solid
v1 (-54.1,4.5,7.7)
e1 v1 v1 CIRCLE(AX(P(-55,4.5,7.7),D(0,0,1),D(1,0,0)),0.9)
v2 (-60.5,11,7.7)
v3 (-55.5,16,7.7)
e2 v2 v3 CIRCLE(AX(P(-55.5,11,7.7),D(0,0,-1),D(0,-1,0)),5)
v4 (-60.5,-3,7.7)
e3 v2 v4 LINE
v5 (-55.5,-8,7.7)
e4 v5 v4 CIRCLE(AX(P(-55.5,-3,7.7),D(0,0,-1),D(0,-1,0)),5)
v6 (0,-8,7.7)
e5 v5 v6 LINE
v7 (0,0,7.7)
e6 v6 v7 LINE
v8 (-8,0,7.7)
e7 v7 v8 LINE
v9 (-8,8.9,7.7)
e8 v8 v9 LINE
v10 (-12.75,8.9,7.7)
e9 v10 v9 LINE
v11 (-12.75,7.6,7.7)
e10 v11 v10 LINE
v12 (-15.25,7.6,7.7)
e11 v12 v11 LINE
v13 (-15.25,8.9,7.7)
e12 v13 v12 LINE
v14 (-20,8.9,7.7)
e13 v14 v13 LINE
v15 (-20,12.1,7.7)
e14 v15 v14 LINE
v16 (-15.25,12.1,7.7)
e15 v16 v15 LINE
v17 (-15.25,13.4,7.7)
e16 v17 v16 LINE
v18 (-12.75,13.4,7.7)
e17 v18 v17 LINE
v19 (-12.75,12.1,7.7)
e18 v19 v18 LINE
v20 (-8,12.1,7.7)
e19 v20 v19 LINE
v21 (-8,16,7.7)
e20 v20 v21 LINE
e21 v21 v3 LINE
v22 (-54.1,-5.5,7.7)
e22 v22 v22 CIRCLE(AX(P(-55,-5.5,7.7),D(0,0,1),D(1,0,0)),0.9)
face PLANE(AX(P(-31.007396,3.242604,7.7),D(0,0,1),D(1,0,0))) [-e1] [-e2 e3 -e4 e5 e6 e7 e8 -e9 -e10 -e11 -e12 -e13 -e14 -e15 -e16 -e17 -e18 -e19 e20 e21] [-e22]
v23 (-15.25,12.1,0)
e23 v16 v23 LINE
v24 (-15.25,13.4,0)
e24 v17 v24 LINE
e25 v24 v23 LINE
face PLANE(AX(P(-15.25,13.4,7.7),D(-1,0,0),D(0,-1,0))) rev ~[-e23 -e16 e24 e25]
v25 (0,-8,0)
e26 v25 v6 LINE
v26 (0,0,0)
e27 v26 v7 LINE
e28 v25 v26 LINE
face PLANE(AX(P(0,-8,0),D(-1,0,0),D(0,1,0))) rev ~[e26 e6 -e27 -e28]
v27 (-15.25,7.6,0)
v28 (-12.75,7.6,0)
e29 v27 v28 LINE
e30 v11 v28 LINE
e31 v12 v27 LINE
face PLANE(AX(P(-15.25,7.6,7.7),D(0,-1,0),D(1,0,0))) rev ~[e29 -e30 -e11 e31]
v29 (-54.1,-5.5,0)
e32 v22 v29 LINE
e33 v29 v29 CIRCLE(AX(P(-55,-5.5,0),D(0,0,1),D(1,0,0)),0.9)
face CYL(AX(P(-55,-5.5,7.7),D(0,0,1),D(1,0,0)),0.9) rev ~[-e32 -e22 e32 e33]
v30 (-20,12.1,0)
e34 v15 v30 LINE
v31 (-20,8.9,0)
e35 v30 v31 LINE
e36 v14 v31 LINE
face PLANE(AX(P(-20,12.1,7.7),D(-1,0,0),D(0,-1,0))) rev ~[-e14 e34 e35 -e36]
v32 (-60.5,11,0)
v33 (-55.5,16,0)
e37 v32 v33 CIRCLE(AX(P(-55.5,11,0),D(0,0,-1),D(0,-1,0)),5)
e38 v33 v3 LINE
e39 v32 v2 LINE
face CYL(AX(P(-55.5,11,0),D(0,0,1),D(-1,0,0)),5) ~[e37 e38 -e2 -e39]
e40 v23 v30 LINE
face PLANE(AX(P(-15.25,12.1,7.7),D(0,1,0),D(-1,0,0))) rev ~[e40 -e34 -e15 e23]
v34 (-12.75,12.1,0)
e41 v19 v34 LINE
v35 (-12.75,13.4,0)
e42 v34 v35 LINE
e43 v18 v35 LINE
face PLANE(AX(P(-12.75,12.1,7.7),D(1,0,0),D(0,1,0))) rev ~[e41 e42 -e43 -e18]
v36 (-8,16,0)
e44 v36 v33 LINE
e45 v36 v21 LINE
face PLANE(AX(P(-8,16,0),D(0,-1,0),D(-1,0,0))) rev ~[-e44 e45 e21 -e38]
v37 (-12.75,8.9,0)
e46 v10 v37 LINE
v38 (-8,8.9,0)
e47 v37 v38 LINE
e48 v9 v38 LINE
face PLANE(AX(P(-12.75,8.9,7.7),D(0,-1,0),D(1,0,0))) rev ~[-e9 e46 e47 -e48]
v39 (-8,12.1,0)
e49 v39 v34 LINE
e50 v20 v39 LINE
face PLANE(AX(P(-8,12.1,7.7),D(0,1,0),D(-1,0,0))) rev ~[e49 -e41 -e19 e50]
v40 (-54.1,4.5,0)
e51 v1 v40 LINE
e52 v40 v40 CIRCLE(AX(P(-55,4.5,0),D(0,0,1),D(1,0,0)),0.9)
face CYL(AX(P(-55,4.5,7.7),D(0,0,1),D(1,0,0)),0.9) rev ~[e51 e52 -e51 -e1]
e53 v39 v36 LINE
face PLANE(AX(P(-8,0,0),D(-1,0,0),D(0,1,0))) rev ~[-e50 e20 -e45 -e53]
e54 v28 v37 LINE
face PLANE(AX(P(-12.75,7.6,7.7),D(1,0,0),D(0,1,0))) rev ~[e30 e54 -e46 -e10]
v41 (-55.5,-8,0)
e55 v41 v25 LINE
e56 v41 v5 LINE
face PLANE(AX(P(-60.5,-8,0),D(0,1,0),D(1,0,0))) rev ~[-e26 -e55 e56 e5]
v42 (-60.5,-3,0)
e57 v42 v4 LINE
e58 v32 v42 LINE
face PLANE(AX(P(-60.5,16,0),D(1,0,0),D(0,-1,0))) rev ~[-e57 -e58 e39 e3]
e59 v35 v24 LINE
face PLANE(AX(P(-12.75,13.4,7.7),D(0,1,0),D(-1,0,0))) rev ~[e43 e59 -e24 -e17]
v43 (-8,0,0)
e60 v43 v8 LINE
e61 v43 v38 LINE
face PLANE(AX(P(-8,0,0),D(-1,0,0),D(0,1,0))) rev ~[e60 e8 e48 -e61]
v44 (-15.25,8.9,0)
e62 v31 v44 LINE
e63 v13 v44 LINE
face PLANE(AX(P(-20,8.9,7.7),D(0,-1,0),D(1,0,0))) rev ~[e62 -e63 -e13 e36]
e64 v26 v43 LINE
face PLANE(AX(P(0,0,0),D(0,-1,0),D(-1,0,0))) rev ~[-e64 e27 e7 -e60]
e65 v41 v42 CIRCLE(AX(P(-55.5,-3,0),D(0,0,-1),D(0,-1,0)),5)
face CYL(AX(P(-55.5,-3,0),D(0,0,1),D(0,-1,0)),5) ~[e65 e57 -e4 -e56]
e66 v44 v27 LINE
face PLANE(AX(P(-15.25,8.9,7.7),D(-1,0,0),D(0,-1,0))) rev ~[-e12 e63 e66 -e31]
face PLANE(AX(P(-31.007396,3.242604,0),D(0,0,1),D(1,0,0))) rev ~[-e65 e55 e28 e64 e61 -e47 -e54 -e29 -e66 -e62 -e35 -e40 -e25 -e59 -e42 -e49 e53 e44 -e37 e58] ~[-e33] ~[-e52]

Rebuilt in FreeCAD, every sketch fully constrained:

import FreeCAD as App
import Part
import Sketcher

V = App.Vector


def edges_at(feature, points):
    """Names of the edges that pass closest to the given points."""
    edges = feature.Shape.Edges
    near = lambda p: min(range(len(edges)), key=lambda i: edges[i].distToShape(Part.Vertex(*p))[0])
    return sorted({f"Edge{near(p) + 1}" for p in points})

doc = App.newDocument("Part")
body = doc.addObject("PartDesign::Body", "Body")

# Sketch on XY plane
sketch1 = body.newObject("Sketcher::SketchObject", "Sketch")
sketch1.AttachmentSupport = (doc.getObject("XY_Plane"), [""])
sketch1.MapMode = "FlatFace"
sketch1.addGeometry([
    Part.LineSegment(V(0, -8, 0), V(0, 0, 0)),  # 0
    Part.LineSegment(V(0, 0, 0), V(-8, 0, 0)),  # 1
    Part.LineSegment(V(-8, 0, 0), V(-8, 16, 0)),  # 2
    Part.LineSegment(V(-8, 16, 0), V(-60, 16, 0)),  # 3
    Part.LineSegment(V(-60, 16, 0), V(-60, -8, 0)),  # 4
    Part.LineSegment(V(-60, -8, 0), V(0, -8, 0)),  # 5
], False)
sketch1.addConstraint([
    Sketcher.Constraint("Coincident", 0, 2, 1, 1),
    Sketcher.Constraint("Coincident", 1, 2, 2, 1),
    Sketcher.Constraint("Coincident", 2, 2, 3, 1),
    Sketcher.Constraint("Coincident", 3, 2, 4, 1),
    Sketcher.Constraint("Coincident", 4, 2, 5, 1),
    Sketcher.Constraint("Coincident", 5, 2, 0, 1),
    Sketcher.Constraint("Vertical", 0),
    Sketcher.Constraint("Horizontal", 1),
    Sketcher.Constraint("Vertical", 2),
    Sketcher.Constraint("Horizontal", 3),
    Sketcher.Constraint("Vertical", 4),
    Sketcher.Constraint("Horizontal", 5),
    Sketcher.Constraint("Coincident", 0, 2, -1, 1),
    Sketcher.Constraint("Equal", 1, 0),
    Sketcher.Constraint("DistanceX", 1, 2, 1, 1, 8.0),
    Sketcher.Constraint("DistanceY", 2, 1, 2, 2, 16.0),
    Sketcher.Constraint("DistanceX", 3, 2, 3, 1, 52.5),
])
pad1 = body.newObject("PartDesign::Pad", "Pad")
pad1.Profile = sketch1
pad1.Length = 7.7

# Sketch on XY plane
sketch2 = body.newObject("Sketcher::SketchObject", "Sketch001")
sketch2.AttachmentSupport = (doc.getObject("XY_Plane"), [""])
sketch2.MapMode = "FlatFace"
sketch2.AttachmentOffset = App.Placement(V(0, 0, 7.7), App.Rotation())
sketch2.addGeometry([
    Part.Circle(V(-55, 4.5, 0), V(0, 0, 1), 0.9),  # 0
    Part.Circle(V(-55, -5.5, 0), V(0, 0, 1), 0.9),  # 1
    Part.LineSegment(V(-12.8, 8.9, 0), V(-8, 8.9, 0)),  # 2
    Part.LineSegment(V(-8, 8.9, 0), V(-8, 12.1, 0)),  # 3
    Part.LineSegment(V(-8, 12.1, 0), V(-12.8, 12.1, 0)),  # 4
    Part.LineSegment(V(-12.8, 12.1, 0), V(-12.8, 13.4, 0)),  # 5
    Part.LineSegment(V(-12.8, 13.4, 0), V(-15.2, 13.4, 0)),  # 6
    Part.LineSegment(V(-15.2, 13.4, 0), V(-15.2, 12.1, 0)),  # 7
    Part.LineSegment(V(-15.2, 12.1, 0), V(-20, 12.1, 0)),  # 8
    Part.LineSegment(V(-20, 12.1, 0), V(-20, 8.9, 0)),  # 9
    Part.LineSegment(V(-20, 8.9, 0), V(-15.2, 8.9, 0)),  # 10
    Part.LineSegment(V(-15.2, 8.9, 0), V(-15.2, 7.6, 0)),  # 11
    Part.LineSegment(V(-15.2, 7.6, 0), V(-12.8, 7.6, 0)),  # 12
    Part.LineSegment(V(-12.8, 7.6, 0), V(-12.8, 8.9, 0)),  # 13
], False)
sketch2.addConstraint([
    Sketcher.Constraint("Coincident", 2, 2, 3, 1),
    Sketcher.Constraint("Coincident", 3, 2, 4, 1),
    Sketcher.Constraint("Coincident", 4, 2, 5, 1),
    Sketcher.Constraint("Coincident", 5, 2, 6, 1),
    Sketcher.Constraint("Coincident", 6, 2, 7, 1),
    Sketcher.Constraint("Coincident", 7, 2, 8, 1),
    Sketcher.Constraint("Coincident", 8, 2, 9, 1),
    Sketcher.Constraint("Coincident", 9, 2, 10, 1),
    Sketcher.Constraint("Coincident", 10, 2, 11, 1),
    Sketcher.Constraint("Coincident", 11, 2, 12, 1),
    Sketcher.Constraint("Coincident", 12, 2, 13, 1),
    Sketcher.Constraint("Coincident", 13, 2, 2, 1),
    Sketcher.Constraint("Horizontal", 2),
    Sketcher.Constraint("Vertical", 3),
    Sketcher.Constraint("Horizontal", 4),
    Sketcher.Constraint("Vertical", 5),
    Sketcher.Constraint("Horizontal", 6),
    Sketcher.Constraint("Vertical", 7),
    Sketcher.Constraint("Horizontal", 8),
    Sketcher.Constraint("Vertical", 9),
    Sketcher.Constraint("Horizontal", 10),
    Sketcher.Constraint("Vertical", 11),
    Sketcher.Constraint("Horizontal", 12),
    Sketcher.Constraint("Vertical", 13),
    Sketcher.Constraint("Equal", 0, 1),
    Sketcher.Constraint("Horizontal", 4, 2, 7, 2),
    Sketcher.Constraint("Horizontal", 2, 2, 9, 2),
    Sketcher.Constraint("Vertical", 0, 3, 1, 3),
    Sketcher.Constraint("Vertical", 7, 2, 10, 2),
    Sketcher.Constraint("Vertical", 5, 2, 12, 2),
    Sketcher.Constraint("Equal", 4, 8),
    Sketcher.Constraint("Equal", 7, 11),
    Sketcher.Constraint("Diameter", 0, 1.8),
    Sketcher.Constraint("DistanceX", 6, 2, 6, 1, 2.5),
    Sketcher.Constraint("DistanceY", 3, 1, 3, 2, 3.2),
    Sketcher.Constraint("DistanceY", 5, 1, 5, 2, 1.3),
    Sketcher.Constraint("DistanceX", 0, 3, -1, 1, 55.0),
    Sketcher.Constraint("DistanceX", 2, 2, -1, 1, 8.0),
    Sketcher.Constraint("DistanceX", 8, 2, -1, 1, 20.0),
    Sketcher.Constraint("DistanceY", 1, 3, 0, 3, 10.0),
    Sketcher.Constraint("DistanceY", -1, 1, 0, 3, 4.5),
    Sketcher.Constraint("DistanceY", -1, 1, 2, 2, 8.9),
])
pocket1 = body.newObject("PartDesign::Pocket", "Pocket")
pocket1.Profile = sketch2
pocket1.Type = "ThroughAll"
doc.recompute()

fillet = body.newObject("PartDesign::Fillet", "Fillet")
fillet.Base = (pocket1, edges_at(pocket1, [(-60.5, 16, 3.85), (-60.5, -8, 3.85)]))
fillet.Radius = 5

doc.recompute()
